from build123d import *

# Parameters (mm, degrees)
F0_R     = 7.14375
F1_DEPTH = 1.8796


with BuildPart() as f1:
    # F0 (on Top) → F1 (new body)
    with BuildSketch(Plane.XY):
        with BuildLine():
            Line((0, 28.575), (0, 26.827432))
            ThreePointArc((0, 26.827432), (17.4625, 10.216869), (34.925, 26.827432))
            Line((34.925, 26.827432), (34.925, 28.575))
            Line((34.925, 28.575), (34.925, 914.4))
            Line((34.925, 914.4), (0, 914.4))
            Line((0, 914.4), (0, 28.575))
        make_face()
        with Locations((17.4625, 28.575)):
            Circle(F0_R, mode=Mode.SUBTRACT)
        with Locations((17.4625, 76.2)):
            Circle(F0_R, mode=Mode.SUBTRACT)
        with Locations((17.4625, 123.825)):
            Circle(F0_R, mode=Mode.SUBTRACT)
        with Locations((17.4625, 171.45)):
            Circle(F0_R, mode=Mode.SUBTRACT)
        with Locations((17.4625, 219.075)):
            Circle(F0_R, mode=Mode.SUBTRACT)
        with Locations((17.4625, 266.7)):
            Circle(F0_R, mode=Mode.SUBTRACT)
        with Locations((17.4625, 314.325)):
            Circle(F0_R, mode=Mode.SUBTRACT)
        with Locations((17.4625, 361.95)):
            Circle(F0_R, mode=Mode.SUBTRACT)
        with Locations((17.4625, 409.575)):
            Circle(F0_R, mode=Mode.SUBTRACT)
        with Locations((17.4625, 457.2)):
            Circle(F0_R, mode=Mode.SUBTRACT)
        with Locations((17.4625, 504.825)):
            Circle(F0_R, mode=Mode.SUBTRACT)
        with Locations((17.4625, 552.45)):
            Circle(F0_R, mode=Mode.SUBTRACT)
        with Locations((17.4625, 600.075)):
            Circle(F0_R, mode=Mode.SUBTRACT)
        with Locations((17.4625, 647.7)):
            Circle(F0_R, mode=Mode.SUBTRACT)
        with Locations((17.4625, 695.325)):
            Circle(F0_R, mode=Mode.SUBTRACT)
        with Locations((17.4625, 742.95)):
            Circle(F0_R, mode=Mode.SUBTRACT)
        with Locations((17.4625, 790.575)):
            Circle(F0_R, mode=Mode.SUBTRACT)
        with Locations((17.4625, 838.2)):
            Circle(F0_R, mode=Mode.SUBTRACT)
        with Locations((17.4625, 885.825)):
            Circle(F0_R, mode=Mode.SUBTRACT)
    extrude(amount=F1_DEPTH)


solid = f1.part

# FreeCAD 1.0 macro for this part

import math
import FreeCAD as App
import Part
import Sketcher

V = App.Vector
Q = App.Units.Quantity

doc = App.newDocument("Part")
body = doc.addObject("PartDesign::Body", "Body")

# Sketch on XY plane
sketch1 = body.newObject("Sketcher::SketchObject", "Sketch")
sketch1.AttachmentSupport = (doc.getObject("XY_Plane"), [""])
sketch1.MapMode = "FlatFace"
sketch1.addGeometry([
    Part.ArcOfCircle(Part.Circle(V(17, 28, 0), V(0, 0, 1), 17), math.radians(-177), math.radians(-3)),  # 0
    Part.LineSegment(V(35, 27, 0), V(35, 914, 0)),  # 1
    Part.LineSegment(V(35, 914, 0), V(0, 914, 0)),  # 2
    Part.LineSegment(V(0, 914, 0), V(0, 27, 0)),  # 3
    Part.Circle(V(17, 29, 0), V(0, 0, 1), 7),  # 4
    Part.Circle(V(17, 76, 0), V(0, 0, 1), 7),  # 5
    Part.Circle(V(17, 124, 0), V(0, 0, 1), 7),  # 6
    Part.Circle(V(17, 171, 0), V(0, 0, 1), 7),  # 7
    Part.Circle(V(17, 219, 0), V(0, 0, 1), 7),  # 8
    Part.Circle(V(17, 267, 0), V(0, 0, 1), 7),  # 9
    Part.Circle(V(17, 314, 0), V(0, 0, 1), 7),  # 10
    Part.Circle(V(17, 362, 0), V(0, 0, 1), 7),  # 11
    Part.Circle(V(17, 410, 0), V(0, 0, 1), 7),  # 12
    Part.Circle(V(17, 457, 0), V(0, 0, 1), 7),  # 13
    Part.Circle(V(17, 505, 0), V(0, 0, 1), 7),  # 14
    Part.Circle(V(17, 552, 0), V(0, 0, 1), 7),  # 15
    Part.Circle(V(17, 600, 0), V(0, 0, 1), 7),  # 16
    Part.Circle(V(17, 648, 0), V(0, 0, 1), 7),  # 17
    Part.Circle(V(17, 695, 0), V(0, 0, 1), 7),  # 18
    Part.Circle(V(17, 743, 0), V(0, 0, 1), 7),  # 19
    Part.Circle(V(17, 791, 0), V(0, 0, 1), 7),  # 20
    Part.Circle(V(17, 838, 0), V(0, 0, 1), 7),  # 21
    Part.Circle(V(17, 886, 0), V(0, 0, 1), 7),  # 22
], False)
sketch1.addConstraint([
    Sketcher.Constraint("Coincident", 0, 2, 1, 1),
    Sketcher.Constraint("Coincident", 1, 2, 2, 1),
    Sketcher.Constraint("Coincident", 2, 2, 3, 1),
    Sketcher.Constraint("Coincident", 3, 2, 0, 1),
    Sketcher.Constraint("Vertical", 1),
    Sketcher.Constraint("Horizontal", 2),
    Sketcher.Constraint("Vertical", 3),
    Sketcher.Constraint("Equal", 4, 5),
    Sketcher.Constraint("Equal", 5, 6),
    Sketcher.Constraint("Equal", 6, 7),
    Sketcher.Constraint("Equal", 7, 8),
    Sketcher.Constraint("Equal", 8, 9),
    Sketcher.Constraint("Equal", 9, 10),
    Sketcher.Constraint("Equal", 10, 11),
    Sketcher.Constraint("Equal", 11, 12),
    Sketcher.Constraint("Equal", 12, 13),
    Sketcher.Constraint("Equal", 13, 14),
    Sketcher.Constraint("Equal", 14, 15),
    Sketcher.Constraint("Equal", 15, 16),
    Sketcher.Constraint("Equal", 16, 17),
    Sketcher.Constraint("Equal", 17, 18),
    Sketcher.Constraint("Equal", 18, 19),
    Sketcher.Constraint("Equal", 19, 20),
    Sketcher.Constraint("Equal", 20, 21),
    Sketcher.Constraint("Equal", 21, 22),
    Sketcher.Constraint("PointOnObject", 2, 2, -2),
    Sketcher.Constraint("Horizontal", 0, 2, 3, 2),
    Sketcher.Constraint("Vertical", 0, 3, 4, 3),
    Sketcher.Constraint("Vertical", 4, 3, 5, 3),
    Sketcher.Constraint("Vertical", 5, 3, 6, 3),
    Sketcher.Constraint("Vertical", 6, 3, 7, 3),
    Sketcher.Constraint("Vertical", 7, 3, 8, 3),
    Sketcher.Constraint("Vertical", 8, 3, 9, 3),
    Sketcher.Constraint("Vertical", 9, 3, 10, 3),
    Sketcher.Constraint("Vertical", 10, 3, 11, 3),
    Sketcher.Constraint("Vertical", 11, 3, 12, 3),
    Sketcher.Constraint("Vertical", 12, 3, 13, 3),
    Sketcher.Constraint("Vertical", 13, 3, 14, 3),
    Sketcher.Constraint("Vertical", 14, 3, 15, 3),
    Sketcher.Constraint("Vertical", 15, 3, 16, 3),
    Sketcher.Constraint("Vertical", 16, 3, 17, 3),
    Sketcher.Constraint("Vertical", 17, 3, 18, 3),
    Sketcher.Constraint("Vertical", 18, 3, 19, 3),
    Sketcher.Constraint("Vertical", 19, 3, 20, 3),
    Sketcher.Constraint("Vertical", 20, 3, 21, 3),
    Sketcher.Constraint("Vertical", 21, 3, 22, 3),
    Sketcher.Constraint("Diameter", 4, Q("0.5625 in")),
    Sketcher.Constraint("DistanceY", -1, 1, 5, 3, Q("3 in")),
    Sketcher.Constraint("DistanceY", -1, 1, 13, 3, Q("18 in")),
    Sketcher.Constraint("DistanceY", -1, 1, 21, 3, Q("33 in")),
    Sketcher.Constraint("DistanceY", -1, 1, 1, 2, Q("36 in")),
    Sketcher.Constraint("DistanceY", -1, 1, 9, 3, Q("10.5 in")),
    Sketcher.Constraint("DistanceY", -1, 1, 17, 3, Q("25.5 in")),
    Sketcher.Constraint("DistanceY", 4, 3, 8, 3, Q("7.5 in")),
    Sketcher.Constraint("DistanceY", 6, 3, 10, 3, Q("7.5 in")),
    Sketcher.Constraint("DistanceY", 7, 3, 11, 3, Q("7.5 in")),
    Sketcher.Constraint("DistanceY", 8, 3, 12, 3, Q("7.5 in")),
    Sketcher.Constraint("DistanceY", 10, 3, 14, 3, Q("7.5 in")),
    Sketcher.Constraint("DistanceY", 11, 3, 15, 3, Q("7.5 in")),
    Sketcher.Constraint("DistanceY", 12, 3, 16, 3, Q("7.5 in")),
    Sketcher.Constraint("DistanceY", 14, 3, 18, 3, Q("7.5 in")),
    Sketcher.Constraint("DistanceY", 15, 3, 19, 3, Q("7.5 in")),
    Sketcher.Constraint("DistanceY", 16, 3, 20, 3, Q("7.5 in")),
    Sketcher.Constraint("DistanceY", 18, 3, 22, 3, Q("7.5 in")),
    Sketcher.Constraint("DistanceX", 2, 2, 2, 1, Q("1.375 in")),
    Sketcher.Constraint("DistanceY", -1, 1, 7, 3, Q("6.75 in")),
    Sketcher.Constraint("DistanceY", 4, 3, 6, 3, Q("3.75 in")),
    Sketcher.Constraint("DistanceY", -1, 1, 4, 3, Q("1.125 in")),
    Sketcher.Constraint("Radius", 0, 17.484347),
    Sketcher.Constraint("DistanceY", 1, 1, 1, 2, 887.572568),
])
pad1 = body.newObject("PartDesign::Pad", "Pad")
pad1.Profile = sketch1
pad1.Length = Q("0.074 in")

doc.recompute()
